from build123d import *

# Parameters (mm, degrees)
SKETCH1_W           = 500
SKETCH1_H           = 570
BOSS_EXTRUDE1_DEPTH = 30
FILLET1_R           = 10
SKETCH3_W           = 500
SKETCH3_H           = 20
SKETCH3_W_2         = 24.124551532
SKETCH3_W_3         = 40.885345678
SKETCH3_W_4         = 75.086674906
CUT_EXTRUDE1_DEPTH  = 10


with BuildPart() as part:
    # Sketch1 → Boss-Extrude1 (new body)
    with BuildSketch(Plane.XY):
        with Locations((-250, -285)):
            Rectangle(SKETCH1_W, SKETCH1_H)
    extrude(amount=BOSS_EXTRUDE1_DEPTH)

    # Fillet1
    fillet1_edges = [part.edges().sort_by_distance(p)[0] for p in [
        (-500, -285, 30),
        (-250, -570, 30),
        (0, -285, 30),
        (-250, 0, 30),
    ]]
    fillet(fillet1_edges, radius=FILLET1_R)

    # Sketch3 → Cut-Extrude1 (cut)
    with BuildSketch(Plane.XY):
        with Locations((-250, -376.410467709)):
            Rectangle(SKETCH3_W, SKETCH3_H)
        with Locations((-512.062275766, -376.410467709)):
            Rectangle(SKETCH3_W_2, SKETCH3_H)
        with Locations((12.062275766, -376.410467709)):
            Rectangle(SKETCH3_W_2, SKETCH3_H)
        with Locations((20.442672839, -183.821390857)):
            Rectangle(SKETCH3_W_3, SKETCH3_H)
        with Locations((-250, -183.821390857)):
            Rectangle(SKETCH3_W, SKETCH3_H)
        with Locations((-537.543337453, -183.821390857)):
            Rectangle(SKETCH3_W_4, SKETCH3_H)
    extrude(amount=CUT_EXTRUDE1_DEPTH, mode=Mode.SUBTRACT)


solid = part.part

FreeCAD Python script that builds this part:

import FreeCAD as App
import Part
import Sketcher


def edges_at(feature, points):
    """Names of the edges that pass closest to the given points."""
    edges = feature.Shape.Edges
    near = lambda p: min(range(len(edges)), key=lambda i: edges[i].distToShape(Part.Vertex(*p))[0])
    return sorted({f"Edge{near(p) + 1}" for p in points})

doc = App.newDocument("Part")
body = doc.addObject("PartDesign::Body", "Body")

sketch1 = body.newObject("Sketcher::SketchObject", "Sketch")
sketch1.AttachmentSupport = (doc.getObject("XY_Plane"), [""])
sketch1.MapMode = "FlatFace"
sketch1.addGeometry(Part.LineSegment(App.Vector(-500, 0, 0), App.Vector(-500, -570, 0)), False)
sketch1.addGeometry(Part.LineSegment(App.Vector(-500, -570, 0), App.Vector(0, -570, 0)), False)
sketch1.addGeometry(Part.LineSegment(App.Vector(0, -570, 0), App.Vector(0, 0, 0)), False)
sketch1.addGeometry(Part.LineSegment(App.Vector(0, 0, 0), App.Vector(-500, 0, 0)), False)
sketch1.addConstraint(Sketcher.Constraint("Coincident", 0, 2, 1, 1))
sketch1.addConstraint(Sketcher.Constraint("Coincident", 1, 2, 2, 1))
sketch1.addConstraint(Sketcher.Constraint("Coincident", 2, 2, 3, 1))
sketch1.addConstraint(Sketcher.Constraint("Coincident", 3, 2, 0, 1))
sketch1.addConstraint(Sketcher.Constraint("Vertical", 0))
sketch1.addConstraint(Sketcher.Constraint("Horizontal", 1))
sketch1.addConstraint(Sketcher.Constraint("Vertical", 2))
sketch1.addConstraint(Sketcher.Constraint("Horizontal", 3))
sketch1.addConstraint(Sketcher.Constraint("Coincident", 2, 2, -1, 1))
sketch1.addConstraint(Sketcher.Constraint("DistanceX", 1, 1, 1, 2, 500.0))
sketch1.addConstraint(Sketcher.Constraint("DistanceY", 0, 2, 0, 1, 570.0))
pad1 = body.newObject("PartDesign::Pad", "Pad")
pad1.Profile = sketch1
pad1.Length = 30
doc.recompute()

fillet = body.newObject("PartDesign::Fillet", "Fillet")
fillet.Base = (pad1, edges_at(pad1, [
    (-500, -285, 30),
    (-250, -570, 30),
    (0, -285, 30),
    (-250, 0, 30),
]))
fillet.Radius = 10

sketch2 = body.newObject("Sketcher::SketchObject", "Sketch001")
sketch2.AttachmentSupport = (doc.getObject("XY_Plane"), [""])
sketch2.MapMode = "FlatFace"
sketch2.addGeometry(Part.LineSegment(App.Vector(-524, -366, 0), App.Vector(-524, -386, 0)), False)
sketch2.addGeometry(Part.LineSegment(App.Vector(-524, -386, 0), App.Vector(24, -386, 0)), False)
sketch2.addGeometry(Part.LineSegment(App.Vector(24, -386, 0), App.Vector(24, -366, 0)), False)
sketch2.addGeometry(Part.LineSegment(App.Vector(24, -366, 0), App.Vector(-524, -366, 0)), False)
sketch2.addGeometry(Part.LineSegment(App.Vector(41, -194, 0), App.Vector(41, -174, 0)), False)
sketch2.addGeometry(Part.LineSegment(App.Vector(41, -174, 0), App.Vector(-575, -174, 0)), False)
sketch2.addGeometry(Part.LineSegment(App.Vector(-575, -174, 0), App.Vector(-575, -194, 0)), False)
sketch2.addGeometry(Part.LineSegment(App.Vector(-575, -194, 0), App.Vector(41, -194, 0)), False)
sketch2.addConstraint(Sketcher.Constraint("Coincident", 0, 2, 1, 1))
sketch2.addConstraint(Sketcher.Constraint("Coincident", 1, 2, 2, 1))
sketch2.addConstraint(Sketcher.Constraint("Coincident", 2, 2, 3, 1))
sketch2.addConstraint(Sketcher.Constraint("Coincident", 3, 2, 0, 1))
sketch2.addConstraint(Sketcher.Constraint("Coincident", 4, 2, 5, 1))
sketch2.addConstraint(Sketcher.Constraint("Coincident", 5, 2, 6, 1))
sketch2.addConstraint(Sketcher.Constraint("Coincident", 6, 2, 7, 1))
sketch2.addConstraint(Sketcher.Constraint("Coincident", 7, 2, 4, 1))
sketch2.addConstraint(Sketcher.Constraint("Vertical", 0))
sketch2.addConstraint(Sketcher.Constraint("Horizontal", 1))
sketch2.addConstraint(Sketcher.Constraint("Vertical", 2))
sketch2.addConstraint(Sketcher.Constraint("Horizontal", 3))
sketch2.addConstraint(Sketcher.Constraint("Vertical", 4))
sketch2.addConstraint(Sketcher.Constraint("Horizontal", 5))
sketch2.addConstraint(Sketcher.Constraint("Vertical", 6))
sketch2.addConstraint(Sketcher.Constraint("Horizontal", 7))
sketch2.addConstraint(Sketcher.Constraint("Equal", 2, 4))
sketch2.addConstraint(Sketcher.Constraint("DistanceY", 0, 2, 0, 1, 20.0))
sketch2.addConstraint(Sketcher.Constraint("DistanceX", 5, 2, 5, 1, 615.972021))
sketch2.addConstraint(Sketcher.Constraint("DistanceX", 1, 1, 1, 2, 548.249103))
sketch2.addConstraint(Sketcher.Constraint("DistanceX", 0, 2, -1, 1, 524.124552))
sketch2.addConstraint(Sketcher.Constraint("DistanceY", 4, 2, -1, 1, 173.821391))
sketch2.addConstraint(Sketcher.Constraint("DistanceY", 0, 2, -1, 1, 386.410468))
sketch2.addConstraint(Sketcher.Constraint("DistanceX", -1, 1, 4, 2, 40.885346))
pocket1 = body.newObject("PartDesign::Pocket", "Pocket")
pocket1.Profile = sketch2
pocket1.Length = 10
pocket1.Reversed = True

doc.recompute()
